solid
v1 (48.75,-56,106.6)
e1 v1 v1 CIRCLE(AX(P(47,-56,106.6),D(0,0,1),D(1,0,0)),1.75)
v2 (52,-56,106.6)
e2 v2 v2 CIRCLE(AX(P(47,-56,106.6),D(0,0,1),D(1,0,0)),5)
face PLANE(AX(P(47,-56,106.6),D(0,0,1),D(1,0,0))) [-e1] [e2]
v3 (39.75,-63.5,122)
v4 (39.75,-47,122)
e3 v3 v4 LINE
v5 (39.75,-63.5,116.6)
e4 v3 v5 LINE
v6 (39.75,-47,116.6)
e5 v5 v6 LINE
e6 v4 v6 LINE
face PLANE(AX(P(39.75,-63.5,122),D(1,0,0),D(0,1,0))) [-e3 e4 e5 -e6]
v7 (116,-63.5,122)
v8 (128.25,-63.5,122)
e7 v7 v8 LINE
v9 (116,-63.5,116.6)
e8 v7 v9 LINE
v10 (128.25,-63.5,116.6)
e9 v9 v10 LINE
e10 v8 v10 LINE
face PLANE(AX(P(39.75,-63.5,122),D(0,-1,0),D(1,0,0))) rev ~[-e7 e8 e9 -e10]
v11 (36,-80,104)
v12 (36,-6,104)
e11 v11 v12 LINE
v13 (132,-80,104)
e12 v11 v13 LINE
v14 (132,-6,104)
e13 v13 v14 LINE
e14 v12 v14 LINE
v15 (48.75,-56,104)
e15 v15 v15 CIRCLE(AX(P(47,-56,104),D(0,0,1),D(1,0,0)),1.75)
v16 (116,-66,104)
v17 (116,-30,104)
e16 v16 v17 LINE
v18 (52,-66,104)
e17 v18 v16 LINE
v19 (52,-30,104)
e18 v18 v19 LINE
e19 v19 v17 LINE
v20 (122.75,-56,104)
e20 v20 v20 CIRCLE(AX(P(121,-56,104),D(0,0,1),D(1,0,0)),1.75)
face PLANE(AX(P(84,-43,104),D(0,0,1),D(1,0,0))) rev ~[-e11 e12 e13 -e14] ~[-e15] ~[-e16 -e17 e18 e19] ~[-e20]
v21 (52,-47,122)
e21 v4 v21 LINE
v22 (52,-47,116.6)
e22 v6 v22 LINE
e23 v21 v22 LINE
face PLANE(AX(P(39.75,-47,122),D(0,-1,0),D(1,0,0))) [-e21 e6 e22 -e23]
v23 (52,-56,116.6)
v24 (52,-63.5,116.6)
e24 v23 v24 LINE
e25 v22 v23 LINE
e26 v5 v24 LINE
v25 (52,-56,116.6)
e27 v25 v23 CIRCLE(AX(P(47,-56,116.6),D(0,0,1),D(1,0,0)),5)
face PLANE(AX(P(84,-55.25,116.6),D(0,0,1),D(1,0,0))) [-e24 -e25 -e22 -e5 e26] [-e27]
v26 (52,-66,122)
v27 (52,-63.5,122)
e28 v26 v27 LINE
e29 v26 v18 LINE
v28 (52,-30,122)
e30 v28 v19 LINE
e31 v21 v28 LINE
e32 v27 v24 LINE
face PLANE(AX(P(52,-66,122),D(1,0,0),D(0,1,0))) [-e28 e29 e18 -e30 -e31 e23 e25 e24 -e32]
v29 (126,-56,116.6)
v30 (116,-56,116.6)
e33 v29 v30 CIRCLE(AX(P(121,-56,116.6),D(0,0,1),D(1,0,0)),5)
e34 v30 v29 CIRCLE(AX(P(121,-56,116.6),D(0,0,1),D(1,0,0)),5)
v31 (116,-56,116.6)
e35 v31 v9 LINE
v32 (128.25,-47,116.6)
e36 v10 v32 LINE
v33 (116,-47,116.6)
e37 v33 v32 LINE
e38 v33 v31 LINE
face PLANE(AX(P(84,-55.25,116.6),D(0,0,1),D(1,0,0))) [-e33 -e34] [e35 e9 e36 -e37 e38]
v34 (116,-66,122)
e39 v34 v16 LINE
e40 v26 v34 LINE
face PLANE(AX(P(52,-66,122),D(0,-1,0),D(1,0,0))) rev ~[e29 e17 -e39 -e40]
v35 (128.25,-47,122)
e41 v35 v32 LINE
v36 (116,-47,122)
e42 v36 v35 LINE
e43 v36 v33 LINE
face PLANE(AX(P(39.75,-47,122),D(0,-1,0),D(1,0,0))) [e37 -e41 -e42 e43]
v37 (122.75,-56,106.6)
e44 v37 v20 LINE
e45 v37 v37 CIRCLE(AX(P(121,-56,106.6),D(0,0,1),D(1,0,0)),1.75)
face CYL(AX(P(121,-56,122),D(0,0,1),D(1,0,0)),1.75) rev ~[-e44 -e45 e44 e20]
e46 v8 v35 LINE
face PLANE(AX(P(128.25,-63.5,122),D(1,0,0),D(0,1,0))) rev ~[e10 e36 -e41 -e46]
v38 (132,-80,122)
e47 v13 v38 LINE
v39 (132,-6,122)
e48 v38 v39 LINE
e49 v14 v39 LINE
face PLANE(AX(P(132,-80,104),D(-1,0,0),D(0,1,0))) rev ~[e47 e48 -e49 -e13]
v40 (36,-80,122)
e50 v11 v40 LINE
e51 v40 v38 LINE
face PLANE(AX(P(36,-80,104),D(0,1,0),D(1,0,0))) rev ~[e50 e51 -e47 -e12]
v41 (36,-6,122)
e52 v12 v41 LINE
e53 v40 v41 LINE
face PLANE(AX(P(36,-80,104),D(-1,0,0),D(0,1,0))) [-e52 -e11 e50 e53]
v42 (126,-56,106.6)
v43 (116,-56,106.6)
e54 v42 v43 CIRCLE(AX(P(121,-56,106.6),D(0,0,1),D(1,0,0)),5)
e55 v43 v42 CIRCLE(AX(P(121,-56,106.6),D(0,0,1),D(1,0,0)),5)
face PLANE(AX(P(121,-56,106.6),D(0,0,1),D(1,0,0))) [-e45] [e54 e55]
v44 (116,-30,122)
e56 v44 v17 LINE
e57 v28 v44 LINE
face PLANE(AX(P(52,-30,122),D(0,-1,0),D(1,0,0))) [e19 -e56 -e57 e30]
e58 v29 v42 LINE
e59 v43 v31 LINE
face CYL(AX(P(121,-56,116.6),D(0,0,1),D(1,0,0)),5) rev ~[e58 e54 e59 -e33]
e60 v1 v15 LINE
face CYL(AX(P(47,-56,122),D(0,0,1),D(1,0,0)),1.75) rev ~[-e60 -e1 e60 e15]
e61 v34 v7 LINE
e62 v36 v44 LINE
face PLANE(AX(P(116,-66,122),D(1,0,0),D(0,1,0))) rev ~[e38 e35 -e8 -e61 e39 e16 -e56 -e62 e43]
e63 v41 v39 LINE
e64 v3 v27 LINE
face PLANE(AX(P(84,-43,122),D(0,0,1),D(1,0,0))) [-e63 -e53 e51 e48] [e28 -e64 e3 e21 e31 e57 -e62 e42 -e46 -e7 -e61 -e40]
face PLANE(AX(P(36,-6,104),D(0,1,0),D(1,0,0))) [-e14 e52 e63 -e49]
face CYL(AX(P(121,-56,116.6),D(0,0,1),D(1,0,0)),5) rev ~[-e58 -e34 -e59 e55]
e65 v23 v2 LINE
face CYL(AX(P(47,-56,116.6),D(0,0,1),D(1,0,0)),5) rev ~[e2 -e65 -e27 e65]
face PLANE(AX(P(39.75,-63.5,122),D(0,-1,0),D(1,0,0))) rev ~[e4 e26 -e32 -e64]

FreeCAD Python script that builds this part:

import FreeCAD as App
import Part
import Sketcher

V = App.Vector
Q = App.Units.Quantity

doc = App.newDocument("Part")
body = doc.addObject("PartDesign::Body", "Body")

sketch1 = body.newObject("Sketcher::SketchObject", "Sketch")
sketch1.AttachmentSupport = (doc.getObject("XY_Plane"), [""])
sketch1.MapMode = "FlatFace"
sketch1.AttachmentOffset = App.Placement(V(0, 0, 104), App.Rotation())
sketch1.addGeometry([
    Part.LineSegment(V(36, -6, 0), V(36, -80, 0)),
    Part.LineSegment(V(36, -80, 0), V(132, -80, 0)),
    Part.LineSegment(V(132, -80, 0), V(132, -6, 0)),
    Part.LineSegment(V(132, -6, 0), V(36, -6, 0)),
], False)
sketch1.addConstraint([
    Sketcher.Constraint("Coincident", 0, 2, 1, 1),
    Sketcher.Constraint("Coincident", 1, 2, 2, 1),
    Sketcher.Constraint("Coincident", 2, 2, 3, 1),
    Sketcher.Constraint("Coincident", 3, 2, 0, 1),
    Sketcher.Constraint("Vertical", 0),
    Sketcher.Constraint("Horizontal", 1),
    Sketcher.Constraint("Vertical", 2),
    Sketcher.Constraint("Horizontal", 3),
    Sketcher.Constraint("DistanceX", 1, 1, 1, 2, Q("96 mm")),
    Sketcher.Constraint("DistanceY", 0, 2, 0, 1, Q("74 mm")),
    Sketcher.Constraint("DistanceX", -1, 1, 0, 2, Q("36 mm")),
    Sketcher.Constraint("DistanceY", 0, 2, -1, 1, Q("80 mm")),
])
pad1 = body.newObject("PartDesign::Pad", "Pad")
pad1.Profile = sketch1
pad1.Length = 18

sketch2 = body.newObject("Sketcher::SketchObject", "Sketch001")
sketch2.AttachmentSupport = (doc.getObject("XY_Plane"), [""])
sketch2.MapMode = "FlatFace"
sketch2.AttachmentOffset = App.Placement(V(0, 0, 122), App.Rotation())
sketch2.addGeometry([
    Part.Circle(V(47, -56, 0), V(0, 0, 1), 1.8),
    Part.Circle(V(121, -56, 0), V(0, 0, 1), 1.8),
], False)
sketch2.addConstraint([
    Sketcher.Constraint("Equal", 0, 1),
    Sketcher.Constraint("Horizontal", 0, 3, 1, 3),
    Sketcher.Constraint("Diameter", 0, Q("3.5 mm")),
    Sketcher.Constraint("DistanceX", -1, 1, 0, 3, Q("47 mm")),
    Sketcher.Constraint("DistanceY", 0, 3, -1, 1, Q("56 mm")),
    Sketcher.Constraint("DistanceX", -1, 1, 1, 3, Q("121 mm")),
])
pocket1 = body.newObject("PartDesign::Pocket", "Pocket")
pocket1.Profile = sketch2
pocket1.Type = "ThroughAll"

sketch3 = body.newObject("Sketcher::SketchObject", "Sketch002")
sketch3.AttachmentSupport = (doc.getObject("XY_Plane"), [""])
sketch3.MapMode = "FlatFace"
sketch3.AttachmentOffset = App.Placement(V(0, 0, 122), App.Rotation())
sketch3.addGeometry([
    Part.LineSegment(V(52, -30, 0), V(52, -66, 0)),
    Part.LineSegment(V(52, -66, 0), V(116, -66, 0)),
    Part.LineSegment(V(116, -66, 0), V(116, -30, 0)),
    Part.LineSegment(V(116, -30, 0), V(52, -30, 0)),
], False)
sketch3.addConstraint([
    Sketcher.Constraint("Coincident", 0, 2, 1, 1),
    Sketcher.Constraint("Coincident", 1, 2, 2, 1),
    Sketcher.Constraint("Coincident", 2, 2, 3, 1),
    Sketcher.Constraint("Coincident", 3, 2, 0, 1),
    Sketcher.Constraint("Vertical", 0),
    Sketcher.Constraint("Horizontal", 1),
    Sketcher.Constraint("Vertical", 2),
    Sketcher.Constraint("Horizontal", 3),
    Sketcher.Constraint("DistanceX", 1, 1, 1, 2, Q("64 mm")),
    Sketcher.Constraint("DistanceY", 0, 2, 0, 1, Q("36 mm")),
    Sketcher.Constraint("DistanceX", -1, 1, 0, 2, Q("52 mm")),
    Sketcher.Constraint("DistanceY", 0, 2, -1, 1, Q("66 mm")),
])
pocket2 = body.newObject("PartDesign::Pocket", "Pocket001")
pocket2.Profile = sketch3
pocket2.Type = "ThroughAll"

sketch4 = body.newObject("Sketcher::SketchObject", "Sketch003")
sketch4.AttachmentSupport = (doc.getObject("XY_Plane"), [""])
sketch4.MapMode = "FlatFace"
sketch4.AttachmentOffset = App.Placement(V(0, 0, 122), App.Rotation())
sketch4.addGeometry([
    Part.LineSegment(V(40, -47, 0), V(40, -64, 0)),
    Part.LineSegment(V(40, -64, 0), V(128, -64, 0)),
    Part.LineSegment(V(128, -64, 0), V(128, -47, 0)),
    Part.LineSegment(V(128, -47, 0), V(40, -47, 0)),
], False)
sketch4.addConstraint([
    Sketcher.Constraint("Coincident", 0, 2, 1, 1),
    Sketcher.Constraint("Coincident", 1, 2, 2, 1),
    Sketcher.Constraint("Coincident", 2, 2, 3, 1),
    Sketcher.Constraint("Coincident", 3, 2, 0, 1),
    Sketcher.Constraint("Vertical", 0),
    Sketcher.Constraint("Horizontal", 1),
    Sketcher.Constraint("Vertical", 2),
    Sketcher.Constraint("Horizontal", 3),
    Sketcher.Constraint("DistanceX", 1, 1, 1, 2, Q("88.5 mm")),
    Sketcher.Constraint("DistanceY", 0, 2, 0, 1, Q("16.5 mm")),
    Sketcher.Constraint("DistanceY", 2, 2, -1, 1, Q("47 mm")),
    Sketcher.Constraint("DistanceX", -1, 1, 0, 2, Q("39.75 mm")),
])
pocket3 = body.newObject("PartDesign::Pocket", "Pocket002")
pocket3.Profile = sketch4
pocket3.Length = 5.4

sketch5 = body.newObject("Sketcher::SketchObject", "Sketch004")
sketch5.AttachmentSupport = (doc.getObject("XY_Plane"), [""])
sketch5.MapMode = "FlatFace"
sketch5.AttachmentOffset = App.Placement(V(0, 0, 116.6), App.Rotation())
sketch5.addGeometry([
    Part.Circle(V(47, -56, 0), V(0, 0, 1), 5),
    Part.Circle(V(121, -56, 0), V(0, 0, 1), 5),
], False)
sketch5.addConstraint([
    Sketcher.Constraint("Equal", 0, 1),
    Sketcher.Constraint("Horizontal", 0, 3, 1, 3),
    Sketcher.Constraint("Diameter", 0, Q("10 mm")),
    Sketcher.Constraint("DistanceX", -1, 1, 0, 3, Q("47 mm")),
    Sketcher.Constraint("DistanceY", 0, 3, -1, 1, Q("56 mm")),
    Sketcher.Constraint("DistanceX", -1, 1, 1, 3, Q("121 mm")),
])
pocket4 = body.newObject("PartDesign::Pocket", "Pocket003")
pocket4.Profile = sketch5
pocket4.Length = 10

doc.recompute()
